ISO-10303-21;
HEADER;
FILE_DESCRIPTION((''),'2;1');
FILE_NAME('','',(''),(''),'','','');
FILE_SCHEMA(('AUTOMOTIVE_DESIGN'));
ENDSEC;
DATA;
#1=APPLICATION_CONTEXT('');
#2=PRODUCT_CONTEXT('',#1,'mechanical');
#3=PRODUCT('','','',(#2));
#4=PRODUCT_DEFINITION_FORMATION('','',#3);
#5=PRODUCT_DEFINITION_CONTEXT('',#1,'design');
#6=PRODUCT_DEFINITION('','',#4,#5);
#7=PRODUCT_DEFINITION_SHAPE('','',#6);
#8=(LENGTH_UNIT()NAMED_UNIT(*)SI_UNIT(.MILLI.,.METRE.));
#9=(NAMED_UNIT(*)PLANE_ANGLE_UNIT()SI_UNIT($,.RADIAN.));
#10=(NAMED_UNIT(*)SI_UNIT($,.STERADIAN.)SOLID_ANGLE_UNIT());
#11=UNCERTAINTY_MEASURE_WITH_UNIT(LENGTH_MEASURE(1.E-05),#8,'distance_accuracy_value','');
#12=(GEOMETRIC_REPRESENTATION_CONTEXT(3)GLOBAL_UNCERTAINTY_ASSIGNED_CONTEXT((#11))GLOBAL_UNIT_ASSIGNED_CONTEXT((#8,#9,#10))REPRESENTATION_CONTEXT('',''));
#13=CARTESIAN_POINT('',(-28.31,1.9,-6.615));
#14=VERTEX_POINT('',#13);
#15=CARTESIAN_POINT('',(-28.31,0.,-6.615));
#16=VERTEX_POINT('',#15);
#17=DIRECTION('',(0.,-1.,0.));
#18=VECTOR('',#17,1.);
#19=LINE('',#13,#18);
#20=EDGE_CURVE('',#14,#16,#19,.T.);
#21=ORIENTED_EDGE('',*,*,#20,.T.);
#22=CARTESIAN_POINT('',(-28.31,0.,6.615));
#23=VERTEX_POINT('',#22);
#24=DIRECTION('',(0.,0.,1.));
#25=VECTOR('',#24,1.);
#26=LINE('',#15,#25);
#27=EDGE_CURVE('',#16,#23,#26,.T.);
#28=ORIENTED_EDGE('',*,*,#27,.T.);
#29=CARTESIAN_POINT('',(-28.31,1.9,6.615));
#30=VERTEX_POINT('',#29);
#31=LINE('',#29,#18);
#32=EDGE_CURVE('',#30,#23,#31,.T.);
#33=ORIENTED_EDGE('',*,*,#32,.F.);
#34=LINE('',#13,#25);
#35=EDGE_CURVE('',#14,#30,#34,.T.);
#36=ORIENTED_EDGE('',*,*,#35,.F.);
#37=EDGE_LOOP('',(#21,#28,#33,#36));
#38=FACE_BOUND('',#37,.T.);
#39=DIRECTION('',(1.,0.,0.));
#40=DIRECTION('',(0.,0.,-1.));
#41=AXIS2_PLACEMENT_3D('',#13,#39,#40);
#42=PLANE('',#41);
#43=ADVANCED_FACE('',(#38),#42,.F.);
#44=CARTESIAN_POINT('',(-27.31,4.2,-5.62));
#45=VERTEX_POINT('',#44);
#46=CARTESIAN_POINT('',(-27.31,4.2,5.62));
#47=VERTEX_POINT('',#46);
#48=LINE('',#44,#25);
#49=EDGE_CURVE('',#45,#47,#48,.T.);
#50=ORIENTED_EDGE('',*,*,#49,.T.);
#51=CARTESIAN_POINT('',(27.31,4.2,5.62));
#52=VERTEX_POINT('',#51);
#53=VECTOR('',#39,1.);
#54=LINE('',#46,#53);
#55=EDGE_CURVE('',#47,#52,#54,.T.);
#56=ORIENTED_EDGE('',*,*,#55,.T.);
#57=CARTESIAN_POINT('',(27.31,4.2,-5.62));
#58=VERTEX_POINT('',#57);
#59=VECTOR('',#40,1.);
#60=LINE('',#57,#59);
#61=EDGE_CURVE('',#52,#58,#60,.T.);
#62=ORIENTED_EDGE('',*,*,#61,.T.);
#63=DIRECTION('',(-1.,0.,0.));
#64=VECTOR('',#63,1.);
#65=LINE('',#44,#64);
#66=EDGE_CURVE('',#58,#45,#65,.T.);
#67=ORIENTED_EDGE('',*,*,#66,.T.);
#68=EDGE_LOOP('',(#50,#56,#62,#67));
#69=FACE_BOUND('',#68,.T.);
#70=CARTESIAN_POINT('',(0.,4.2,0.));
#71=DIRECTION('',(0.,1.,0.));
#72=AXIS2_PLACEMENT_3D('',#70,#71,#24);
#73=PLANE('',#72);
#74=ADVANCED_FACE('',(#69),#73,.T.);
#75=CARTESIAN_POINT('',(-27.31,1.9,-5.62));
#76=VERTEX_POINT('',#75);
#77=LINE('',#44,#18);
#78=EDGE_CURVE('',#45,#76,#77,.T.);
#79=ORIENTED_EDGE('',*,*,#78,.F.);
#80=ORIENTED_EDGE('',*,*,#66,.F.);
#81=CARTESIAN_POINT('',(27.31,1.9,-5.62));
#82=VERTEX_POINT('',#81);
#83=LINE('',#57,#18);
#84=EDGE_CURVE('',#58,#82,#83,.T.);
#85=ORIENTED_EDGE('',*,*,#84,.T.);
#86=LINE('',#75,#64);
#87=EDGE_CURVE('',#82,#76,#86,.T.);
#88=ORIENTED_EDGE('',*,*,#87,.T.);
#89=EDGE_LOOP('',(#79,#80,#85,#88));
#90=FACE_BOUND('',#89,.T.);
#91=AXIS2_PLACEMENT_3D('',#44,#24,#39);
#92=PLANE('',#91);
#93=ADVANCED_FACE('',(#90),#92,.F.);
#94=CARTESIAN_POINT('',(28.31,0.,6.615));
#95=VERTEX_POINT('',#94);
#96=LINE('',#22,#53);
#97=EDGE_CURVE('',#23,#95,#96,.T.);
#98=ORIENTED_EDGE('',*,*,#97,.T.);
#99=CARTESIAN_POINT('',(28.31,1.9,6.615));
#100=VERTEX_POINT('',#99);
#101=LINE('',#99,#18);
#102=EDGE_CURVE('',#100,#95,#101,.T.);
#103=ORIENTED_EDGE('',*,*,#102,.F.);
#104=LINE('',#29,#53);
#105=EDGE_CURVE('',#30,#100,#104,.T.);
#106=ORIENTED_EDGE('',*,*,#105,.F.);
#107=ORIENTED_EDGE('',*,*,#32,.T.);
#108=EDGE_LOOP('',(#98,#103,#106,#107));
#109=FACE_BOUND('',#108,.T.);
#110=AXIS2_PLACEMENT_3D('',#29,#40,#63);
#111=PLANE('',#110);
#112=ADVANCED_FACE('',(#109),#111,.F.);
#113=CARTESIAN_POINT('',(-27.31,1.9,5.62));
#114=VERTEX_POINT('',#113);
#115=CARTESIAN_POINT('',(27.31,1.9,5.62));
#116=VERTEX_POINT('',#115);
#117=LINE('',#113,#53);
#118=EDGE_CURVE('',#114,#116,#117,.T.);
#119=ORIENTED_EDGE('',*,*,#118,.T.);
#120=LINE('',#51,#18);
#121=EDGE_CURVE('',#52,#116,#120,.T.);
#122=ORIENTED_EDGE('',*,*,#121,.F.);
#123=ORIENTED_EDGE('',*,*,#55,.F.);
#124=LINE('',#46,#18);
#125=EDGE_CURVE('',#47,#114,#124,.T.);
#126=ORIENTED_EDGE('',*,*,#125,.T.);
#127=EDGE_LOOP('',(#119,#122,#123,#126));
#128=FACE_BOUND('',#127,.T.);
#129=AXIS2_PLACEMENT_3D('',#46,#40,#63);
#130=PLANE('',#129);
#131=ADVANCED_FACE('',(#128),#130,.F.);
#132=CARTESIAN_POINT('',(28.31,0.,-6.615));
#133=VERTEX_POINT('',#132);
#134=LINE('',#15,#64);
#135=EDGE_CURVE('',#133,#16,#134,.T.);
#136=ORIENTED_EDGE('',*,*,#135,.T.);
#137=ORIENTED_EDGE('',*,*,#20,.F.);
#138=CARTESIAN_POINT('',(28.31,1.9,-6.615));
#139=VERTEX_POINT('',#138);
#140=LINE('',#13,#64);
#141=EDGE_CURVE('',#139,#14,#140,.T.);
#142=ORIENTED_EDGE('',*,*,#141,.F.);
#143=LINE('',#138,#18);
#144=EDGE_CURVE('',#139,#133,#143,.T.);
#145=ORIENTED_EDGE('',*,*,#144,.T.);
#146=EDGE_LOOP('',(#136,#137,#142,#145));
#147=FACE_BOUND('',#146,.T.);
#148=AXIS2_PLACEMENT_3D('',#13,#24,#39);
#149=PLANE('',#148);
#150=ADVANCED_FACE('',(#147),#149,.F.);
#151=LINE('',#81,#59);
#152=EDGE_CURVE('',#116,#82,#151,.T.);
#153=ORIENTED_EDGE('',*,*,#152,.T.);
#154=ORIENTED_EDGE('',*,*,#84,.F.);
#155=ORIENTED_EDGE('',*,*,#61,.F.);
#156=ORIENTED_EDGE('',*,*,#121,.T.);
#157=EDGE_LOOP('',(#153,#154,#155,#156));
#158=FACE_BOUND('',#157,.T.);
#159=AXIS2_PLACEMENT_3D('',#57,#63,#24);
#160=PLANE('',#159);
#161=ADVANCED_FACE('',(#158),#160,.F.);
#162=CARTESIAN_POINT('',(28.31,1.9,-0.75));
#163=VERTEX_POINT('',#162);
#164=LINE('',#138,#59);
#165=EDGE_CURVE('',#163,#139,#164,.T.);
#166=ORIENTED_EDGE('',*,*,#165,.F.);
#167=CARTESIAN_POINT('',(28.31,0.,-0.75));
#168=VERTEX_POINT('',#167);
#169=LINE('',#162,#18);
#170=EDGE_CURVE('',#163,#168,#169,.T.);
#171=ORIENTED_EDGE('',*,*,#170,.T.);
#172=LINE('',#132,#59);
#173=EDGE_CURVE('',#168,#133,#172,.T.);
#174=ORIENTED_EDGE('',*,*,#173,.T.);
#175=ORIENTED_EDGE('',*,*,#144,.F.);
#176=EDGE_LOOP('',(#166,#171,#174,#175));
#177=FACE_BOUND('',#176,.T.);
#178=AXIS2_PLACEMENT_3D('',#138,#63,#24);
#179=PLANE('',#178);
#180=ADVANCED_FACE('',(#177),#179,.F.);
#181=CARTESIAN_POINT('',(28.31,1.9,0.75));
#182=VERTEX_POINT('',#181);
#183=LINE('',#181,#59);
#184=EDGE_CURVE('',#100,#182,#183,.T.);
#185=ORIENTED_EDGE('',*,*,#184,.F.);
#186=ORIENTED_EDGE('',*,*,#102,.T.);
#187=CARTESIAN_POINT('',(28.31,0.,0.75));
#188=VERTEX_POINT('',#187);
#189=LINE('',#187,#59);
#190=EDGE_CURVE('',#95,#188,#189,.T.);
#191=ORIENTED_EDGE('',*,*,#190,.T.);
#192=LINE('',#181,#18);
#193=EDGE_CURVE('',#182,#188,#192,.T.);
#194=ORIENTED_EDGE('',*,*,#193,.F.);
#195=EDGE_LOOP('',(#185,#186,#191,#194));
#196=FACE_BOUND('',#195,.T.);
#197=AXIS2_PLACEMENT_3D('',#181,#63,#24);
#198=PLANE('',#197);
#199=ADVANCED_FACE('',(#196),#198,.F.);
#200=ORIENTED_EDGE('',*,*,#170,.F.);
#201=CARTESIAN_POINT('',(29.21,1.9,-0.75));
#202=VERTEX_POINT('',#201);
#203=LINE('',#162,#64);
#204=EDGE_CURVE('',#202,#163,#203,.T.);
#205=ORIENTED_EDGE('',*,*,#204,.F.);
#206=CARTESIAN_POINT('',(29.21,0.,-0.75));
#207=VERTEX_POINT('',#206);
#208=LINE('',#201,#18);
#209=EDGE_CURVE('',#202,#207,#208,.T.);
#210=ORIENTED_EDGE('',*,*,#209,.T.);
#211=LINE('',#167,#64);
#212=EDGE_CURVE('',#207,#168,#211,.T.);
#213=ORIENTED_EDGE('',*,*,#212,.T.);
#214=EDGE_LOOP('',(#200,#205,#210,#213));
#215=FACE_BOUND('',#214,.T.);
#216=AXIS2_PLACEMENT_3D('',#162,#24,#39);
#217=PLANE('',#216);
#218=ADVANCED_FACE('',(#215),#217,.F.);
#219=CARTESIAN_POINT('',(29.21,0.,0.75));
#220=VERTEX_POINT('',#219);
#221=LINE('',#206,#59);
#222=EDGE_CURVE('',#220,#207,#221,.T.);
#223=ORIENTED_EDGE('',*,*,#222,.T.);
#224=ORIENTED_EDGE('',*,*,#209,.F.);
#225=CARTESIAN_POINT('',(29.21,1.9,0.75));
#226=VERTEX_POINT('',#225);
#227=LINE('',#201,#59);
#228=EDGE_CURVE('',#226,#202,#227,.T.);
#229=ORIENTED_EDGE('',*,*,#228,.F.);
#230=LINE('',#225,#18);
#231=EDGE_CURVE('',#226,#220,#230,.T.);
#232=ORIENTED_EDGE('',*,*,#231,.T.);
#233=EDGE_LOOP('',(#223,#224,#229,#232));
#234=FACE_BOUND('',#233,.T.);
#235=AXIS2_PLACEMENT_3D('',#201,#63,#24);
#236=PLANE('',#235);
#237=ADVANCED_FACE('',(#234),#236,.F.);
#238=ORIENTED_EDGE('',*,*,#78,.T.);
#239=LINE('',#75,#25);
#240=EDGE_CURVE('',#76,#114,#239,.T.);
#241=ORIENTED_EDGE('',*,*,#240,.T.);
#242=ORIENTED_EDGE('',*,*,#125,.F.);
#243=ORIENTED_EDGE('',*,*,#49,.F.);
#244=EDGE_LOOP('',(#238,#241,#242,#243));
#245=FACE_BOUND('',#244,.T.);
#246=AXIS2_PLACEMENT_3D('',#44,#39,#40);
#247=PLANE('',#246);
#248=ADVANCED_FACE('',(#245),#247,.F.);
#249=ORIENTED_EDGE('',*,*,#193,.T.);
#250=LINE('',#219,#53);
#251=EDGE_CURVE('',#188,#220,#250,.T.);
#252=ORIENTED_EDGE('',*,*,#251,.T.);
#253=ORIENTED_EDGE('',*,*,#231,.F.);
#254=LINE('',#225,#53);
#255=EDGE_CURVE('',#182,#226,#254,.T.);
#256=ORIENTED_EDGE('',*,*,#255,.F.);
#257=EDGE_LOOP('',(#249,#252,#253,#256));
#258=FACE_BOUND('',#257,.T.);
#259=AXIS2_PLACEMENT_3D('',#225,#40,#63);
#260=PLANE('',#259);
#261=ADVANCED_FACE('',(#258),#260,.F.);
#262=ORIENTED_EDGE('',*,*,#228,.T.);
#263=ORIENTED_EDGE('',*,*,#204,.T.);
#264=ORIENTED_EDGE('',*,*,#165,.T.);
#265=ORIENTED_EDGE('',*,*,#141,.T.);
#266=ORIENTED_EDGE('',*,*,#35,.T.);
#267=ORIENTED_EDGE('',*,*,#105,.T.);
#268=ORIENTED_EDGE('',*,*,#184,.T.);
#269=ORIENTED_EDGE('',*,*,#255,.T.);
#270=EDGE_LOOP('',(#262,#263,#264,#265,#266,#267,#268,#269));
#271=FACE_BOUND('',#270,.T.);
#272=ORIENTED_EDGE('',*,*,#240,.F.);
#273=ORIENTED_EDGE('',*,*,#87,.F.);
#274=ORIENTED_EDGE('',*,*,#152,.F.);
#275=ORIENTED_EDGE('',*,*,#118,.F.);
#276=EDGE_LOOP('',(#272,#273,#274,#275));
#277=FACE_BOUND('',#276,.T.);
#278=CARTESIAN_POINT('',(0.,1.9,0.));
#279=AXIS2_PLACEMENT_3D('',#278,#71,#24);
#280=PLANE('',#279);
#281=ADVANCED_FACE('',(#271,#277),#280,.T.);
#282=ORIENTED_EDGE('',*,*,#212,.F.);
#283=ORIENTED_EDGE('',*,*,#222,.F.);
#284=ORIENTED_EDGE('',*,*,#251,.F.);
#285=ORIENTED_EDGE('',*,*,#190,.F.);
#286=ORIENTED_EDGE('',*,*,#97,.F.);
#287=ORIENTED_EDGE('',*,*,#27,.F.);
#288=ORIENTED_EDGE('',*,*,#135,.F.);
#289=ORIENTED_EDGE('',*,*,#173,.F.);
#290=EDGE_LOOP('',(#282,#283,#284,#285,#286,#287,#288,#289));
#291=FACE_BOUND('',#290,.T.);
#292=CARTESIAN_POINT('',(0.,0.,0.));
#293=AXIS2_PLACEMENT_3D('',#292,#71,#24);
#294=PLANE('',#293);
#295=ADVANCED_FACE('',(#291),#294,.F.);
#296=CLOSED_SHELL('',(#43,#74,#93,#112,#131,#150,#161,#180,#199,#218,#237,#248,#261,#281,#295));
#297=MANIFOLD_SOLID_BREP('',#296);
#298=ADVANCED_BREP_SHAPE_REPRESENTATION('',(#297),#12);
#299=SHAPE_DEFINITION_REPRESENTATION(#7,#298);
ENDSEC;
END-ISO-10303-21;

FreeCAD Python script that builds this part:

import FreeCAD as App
import Part
import Sketcher

V = App.Vector


def add_polygon(sketch, points):
    """Adds a closed chain of lines whose ends are joined by coincident constraints."""
    first, n = sketch.GeometryCount, len(points)
    for a, b in zip(points, points[1:] + points[:1]):
        sketch.addGeometry(Part.LineSegment(App.Vector(*a, 0), App.Vector(*b, 0)), False)
    for i in range(n):
        sketch.addConstraint(Sketcher.Constraint("Coincident", first + i, 2, first + (i + 1) % n, 1))

doc = App.newDocument("Part")
params = doc.addObject("Spreadsheet::Sheet", "Params")
for row, (alias, value) in enumerate([
    ("sketch1_width", "0.9 mm"),
    ("sketch1_height", "1.5 mm"),
    ("sketch1_width2", "56.62 mm"),
    ("sketch1_height2", "13.23 mm"),
    ("pad1_length", "1.9 mm"),
    ("sketch2_width", "54.62 mm"),
    ("sketch2_height", "11.24 mm"),
    ("pad2_length", "2.3 mm"),
], start=1):
    params.set(f"A{row}", alias)
    params.set(f"B{row}", "=" + value)
    params.setAlias(f"B{row}", alias)

body = doc.addObject("PartDesign::Body", "Body")

sketch1 = body.newObject("Sketcher::SketchObject", "Sketch")
sketch1.AttachmentSupport = (doc.getObject("XZ_Plane"), [""])
sketch1.MapMode = "FlatFace"
add_polygon(sketch1, [(28.31, -0.75), (28.31, -6.615), (-28.31, -6.615), (-28.31, 6.615), (28.31, 6.615), (28.31, 0.75), (29.21, 0.75), (29.21, -0.75)])
sketch1.addConstraint(Sketcher.Constraint("Vertical", 0))
sketch1.addConstraint(Sketcher.Constraint("Horizontal", 1))
sketch1.addConstraint(Sketcher.Constraint("Vertical", 2))
sketch1.addConstraint(Sketcher.Constraint("Horizontal", 3))
sketch1.addConstraint(Sketcher.Constraint("Vertical", 4))
sketch1.addConstraint(Sketcher.Constraint("Horizontal", 5))
sketch1.addConstraint(Sketcher.Constraint("Vertical", 6))
sketch1.addConstraint(Sketcher.Constraint("Horizontal", 7))
sketch1.addConstraint(Sketcher.Constraint("Symmetric", 0, 2, 2, 2, -1, 1))
sketch1.addConstraint(Sketcher.Constraint("Symmetric", 4, 2, 7, 2, -1))
sketch1.addConstraint(Sketcher.Constraint("DistanceX", 5, 1, 5, 2, 0.9))
sketch1.addConstraint(Sketcher.Constraint("DistanceY", 6, 2, 6, 1, 1.5))
sketch1.addConstraint(Sketcher.Constraint("DistanceX", 1, 2, 1, 1, 56.62))
sketch1.addConstraint(Sketcher.Constraint("DistanceY", 2, 1, 2, 2, 13.23))
sketch1.setExpression("Constraints[18]", "Params.sketch1_width")
sketch1.setExpression("Constraints[19]", "Params.sketch1_height")
sketch1.setExpression("Constraints[20]", "Params.sketch1_width2")
sketch1.setExpression("Constraints[21]", "Params.sketch1_height2")
pad1 = body.newObject("PartDesign::Pad", "Pad")
pad1.Profile = sketch1
pad1.setExpression("Length", "Params.pad1_length")
pad1.Reversed = True

sketch2 = body.newObject("Sketcher::SketchObject", "Sketch001")
sketch2.AttachmentSupport = (doc.getObject("XZ_Plane"), [""])
sketch2.MapMode = "FlatFace"
sketch2.AttachmentOffset = App.Placement(V(0, 0, -1.9), App.Rotation())
add_polygon(sketch2, [(-27.31, -5.62), (-27.31, 5.62), (27.31, 5.62), (27.31, -5.62)])
sketch2.addConstraint(Sketcher.Constraint("Vertical", 0))
sketch2.addConstraint(Sketcher.Constraint("Horizontal", 1))
sketch2.addConstraint(Sketcher.Constraint("Vertical", 2))
sketch2.addConstraint(Sketcher.Constraint("Horizontal", 3))
sketch2.addConstraint(Sketcher.Constraint("Symmetric", 0, 2, 2, 2, -1, 1))
sketch2.addConstraint(Sketcher.Constraint("DistanceX", 1, 1, 1, 2, 54.62))
sketch2.addConstraint(Sketcher.Constraint("DistanceY", 0, 1, 0, 2, 11.24))
sketch2.setExpression("Constraints[9]", "Params.sketch2_width")
sketch2.setExpression("Constraints[10]", "Params.sketch2_height")
pad2 = body.newObject("PartDesign::Pad", "Pad001")
pad2.Profile = sketch2
pad2.setExpression("Length", "Params.pad2_length")
pad2.Reversed = True

doc.recompute()
